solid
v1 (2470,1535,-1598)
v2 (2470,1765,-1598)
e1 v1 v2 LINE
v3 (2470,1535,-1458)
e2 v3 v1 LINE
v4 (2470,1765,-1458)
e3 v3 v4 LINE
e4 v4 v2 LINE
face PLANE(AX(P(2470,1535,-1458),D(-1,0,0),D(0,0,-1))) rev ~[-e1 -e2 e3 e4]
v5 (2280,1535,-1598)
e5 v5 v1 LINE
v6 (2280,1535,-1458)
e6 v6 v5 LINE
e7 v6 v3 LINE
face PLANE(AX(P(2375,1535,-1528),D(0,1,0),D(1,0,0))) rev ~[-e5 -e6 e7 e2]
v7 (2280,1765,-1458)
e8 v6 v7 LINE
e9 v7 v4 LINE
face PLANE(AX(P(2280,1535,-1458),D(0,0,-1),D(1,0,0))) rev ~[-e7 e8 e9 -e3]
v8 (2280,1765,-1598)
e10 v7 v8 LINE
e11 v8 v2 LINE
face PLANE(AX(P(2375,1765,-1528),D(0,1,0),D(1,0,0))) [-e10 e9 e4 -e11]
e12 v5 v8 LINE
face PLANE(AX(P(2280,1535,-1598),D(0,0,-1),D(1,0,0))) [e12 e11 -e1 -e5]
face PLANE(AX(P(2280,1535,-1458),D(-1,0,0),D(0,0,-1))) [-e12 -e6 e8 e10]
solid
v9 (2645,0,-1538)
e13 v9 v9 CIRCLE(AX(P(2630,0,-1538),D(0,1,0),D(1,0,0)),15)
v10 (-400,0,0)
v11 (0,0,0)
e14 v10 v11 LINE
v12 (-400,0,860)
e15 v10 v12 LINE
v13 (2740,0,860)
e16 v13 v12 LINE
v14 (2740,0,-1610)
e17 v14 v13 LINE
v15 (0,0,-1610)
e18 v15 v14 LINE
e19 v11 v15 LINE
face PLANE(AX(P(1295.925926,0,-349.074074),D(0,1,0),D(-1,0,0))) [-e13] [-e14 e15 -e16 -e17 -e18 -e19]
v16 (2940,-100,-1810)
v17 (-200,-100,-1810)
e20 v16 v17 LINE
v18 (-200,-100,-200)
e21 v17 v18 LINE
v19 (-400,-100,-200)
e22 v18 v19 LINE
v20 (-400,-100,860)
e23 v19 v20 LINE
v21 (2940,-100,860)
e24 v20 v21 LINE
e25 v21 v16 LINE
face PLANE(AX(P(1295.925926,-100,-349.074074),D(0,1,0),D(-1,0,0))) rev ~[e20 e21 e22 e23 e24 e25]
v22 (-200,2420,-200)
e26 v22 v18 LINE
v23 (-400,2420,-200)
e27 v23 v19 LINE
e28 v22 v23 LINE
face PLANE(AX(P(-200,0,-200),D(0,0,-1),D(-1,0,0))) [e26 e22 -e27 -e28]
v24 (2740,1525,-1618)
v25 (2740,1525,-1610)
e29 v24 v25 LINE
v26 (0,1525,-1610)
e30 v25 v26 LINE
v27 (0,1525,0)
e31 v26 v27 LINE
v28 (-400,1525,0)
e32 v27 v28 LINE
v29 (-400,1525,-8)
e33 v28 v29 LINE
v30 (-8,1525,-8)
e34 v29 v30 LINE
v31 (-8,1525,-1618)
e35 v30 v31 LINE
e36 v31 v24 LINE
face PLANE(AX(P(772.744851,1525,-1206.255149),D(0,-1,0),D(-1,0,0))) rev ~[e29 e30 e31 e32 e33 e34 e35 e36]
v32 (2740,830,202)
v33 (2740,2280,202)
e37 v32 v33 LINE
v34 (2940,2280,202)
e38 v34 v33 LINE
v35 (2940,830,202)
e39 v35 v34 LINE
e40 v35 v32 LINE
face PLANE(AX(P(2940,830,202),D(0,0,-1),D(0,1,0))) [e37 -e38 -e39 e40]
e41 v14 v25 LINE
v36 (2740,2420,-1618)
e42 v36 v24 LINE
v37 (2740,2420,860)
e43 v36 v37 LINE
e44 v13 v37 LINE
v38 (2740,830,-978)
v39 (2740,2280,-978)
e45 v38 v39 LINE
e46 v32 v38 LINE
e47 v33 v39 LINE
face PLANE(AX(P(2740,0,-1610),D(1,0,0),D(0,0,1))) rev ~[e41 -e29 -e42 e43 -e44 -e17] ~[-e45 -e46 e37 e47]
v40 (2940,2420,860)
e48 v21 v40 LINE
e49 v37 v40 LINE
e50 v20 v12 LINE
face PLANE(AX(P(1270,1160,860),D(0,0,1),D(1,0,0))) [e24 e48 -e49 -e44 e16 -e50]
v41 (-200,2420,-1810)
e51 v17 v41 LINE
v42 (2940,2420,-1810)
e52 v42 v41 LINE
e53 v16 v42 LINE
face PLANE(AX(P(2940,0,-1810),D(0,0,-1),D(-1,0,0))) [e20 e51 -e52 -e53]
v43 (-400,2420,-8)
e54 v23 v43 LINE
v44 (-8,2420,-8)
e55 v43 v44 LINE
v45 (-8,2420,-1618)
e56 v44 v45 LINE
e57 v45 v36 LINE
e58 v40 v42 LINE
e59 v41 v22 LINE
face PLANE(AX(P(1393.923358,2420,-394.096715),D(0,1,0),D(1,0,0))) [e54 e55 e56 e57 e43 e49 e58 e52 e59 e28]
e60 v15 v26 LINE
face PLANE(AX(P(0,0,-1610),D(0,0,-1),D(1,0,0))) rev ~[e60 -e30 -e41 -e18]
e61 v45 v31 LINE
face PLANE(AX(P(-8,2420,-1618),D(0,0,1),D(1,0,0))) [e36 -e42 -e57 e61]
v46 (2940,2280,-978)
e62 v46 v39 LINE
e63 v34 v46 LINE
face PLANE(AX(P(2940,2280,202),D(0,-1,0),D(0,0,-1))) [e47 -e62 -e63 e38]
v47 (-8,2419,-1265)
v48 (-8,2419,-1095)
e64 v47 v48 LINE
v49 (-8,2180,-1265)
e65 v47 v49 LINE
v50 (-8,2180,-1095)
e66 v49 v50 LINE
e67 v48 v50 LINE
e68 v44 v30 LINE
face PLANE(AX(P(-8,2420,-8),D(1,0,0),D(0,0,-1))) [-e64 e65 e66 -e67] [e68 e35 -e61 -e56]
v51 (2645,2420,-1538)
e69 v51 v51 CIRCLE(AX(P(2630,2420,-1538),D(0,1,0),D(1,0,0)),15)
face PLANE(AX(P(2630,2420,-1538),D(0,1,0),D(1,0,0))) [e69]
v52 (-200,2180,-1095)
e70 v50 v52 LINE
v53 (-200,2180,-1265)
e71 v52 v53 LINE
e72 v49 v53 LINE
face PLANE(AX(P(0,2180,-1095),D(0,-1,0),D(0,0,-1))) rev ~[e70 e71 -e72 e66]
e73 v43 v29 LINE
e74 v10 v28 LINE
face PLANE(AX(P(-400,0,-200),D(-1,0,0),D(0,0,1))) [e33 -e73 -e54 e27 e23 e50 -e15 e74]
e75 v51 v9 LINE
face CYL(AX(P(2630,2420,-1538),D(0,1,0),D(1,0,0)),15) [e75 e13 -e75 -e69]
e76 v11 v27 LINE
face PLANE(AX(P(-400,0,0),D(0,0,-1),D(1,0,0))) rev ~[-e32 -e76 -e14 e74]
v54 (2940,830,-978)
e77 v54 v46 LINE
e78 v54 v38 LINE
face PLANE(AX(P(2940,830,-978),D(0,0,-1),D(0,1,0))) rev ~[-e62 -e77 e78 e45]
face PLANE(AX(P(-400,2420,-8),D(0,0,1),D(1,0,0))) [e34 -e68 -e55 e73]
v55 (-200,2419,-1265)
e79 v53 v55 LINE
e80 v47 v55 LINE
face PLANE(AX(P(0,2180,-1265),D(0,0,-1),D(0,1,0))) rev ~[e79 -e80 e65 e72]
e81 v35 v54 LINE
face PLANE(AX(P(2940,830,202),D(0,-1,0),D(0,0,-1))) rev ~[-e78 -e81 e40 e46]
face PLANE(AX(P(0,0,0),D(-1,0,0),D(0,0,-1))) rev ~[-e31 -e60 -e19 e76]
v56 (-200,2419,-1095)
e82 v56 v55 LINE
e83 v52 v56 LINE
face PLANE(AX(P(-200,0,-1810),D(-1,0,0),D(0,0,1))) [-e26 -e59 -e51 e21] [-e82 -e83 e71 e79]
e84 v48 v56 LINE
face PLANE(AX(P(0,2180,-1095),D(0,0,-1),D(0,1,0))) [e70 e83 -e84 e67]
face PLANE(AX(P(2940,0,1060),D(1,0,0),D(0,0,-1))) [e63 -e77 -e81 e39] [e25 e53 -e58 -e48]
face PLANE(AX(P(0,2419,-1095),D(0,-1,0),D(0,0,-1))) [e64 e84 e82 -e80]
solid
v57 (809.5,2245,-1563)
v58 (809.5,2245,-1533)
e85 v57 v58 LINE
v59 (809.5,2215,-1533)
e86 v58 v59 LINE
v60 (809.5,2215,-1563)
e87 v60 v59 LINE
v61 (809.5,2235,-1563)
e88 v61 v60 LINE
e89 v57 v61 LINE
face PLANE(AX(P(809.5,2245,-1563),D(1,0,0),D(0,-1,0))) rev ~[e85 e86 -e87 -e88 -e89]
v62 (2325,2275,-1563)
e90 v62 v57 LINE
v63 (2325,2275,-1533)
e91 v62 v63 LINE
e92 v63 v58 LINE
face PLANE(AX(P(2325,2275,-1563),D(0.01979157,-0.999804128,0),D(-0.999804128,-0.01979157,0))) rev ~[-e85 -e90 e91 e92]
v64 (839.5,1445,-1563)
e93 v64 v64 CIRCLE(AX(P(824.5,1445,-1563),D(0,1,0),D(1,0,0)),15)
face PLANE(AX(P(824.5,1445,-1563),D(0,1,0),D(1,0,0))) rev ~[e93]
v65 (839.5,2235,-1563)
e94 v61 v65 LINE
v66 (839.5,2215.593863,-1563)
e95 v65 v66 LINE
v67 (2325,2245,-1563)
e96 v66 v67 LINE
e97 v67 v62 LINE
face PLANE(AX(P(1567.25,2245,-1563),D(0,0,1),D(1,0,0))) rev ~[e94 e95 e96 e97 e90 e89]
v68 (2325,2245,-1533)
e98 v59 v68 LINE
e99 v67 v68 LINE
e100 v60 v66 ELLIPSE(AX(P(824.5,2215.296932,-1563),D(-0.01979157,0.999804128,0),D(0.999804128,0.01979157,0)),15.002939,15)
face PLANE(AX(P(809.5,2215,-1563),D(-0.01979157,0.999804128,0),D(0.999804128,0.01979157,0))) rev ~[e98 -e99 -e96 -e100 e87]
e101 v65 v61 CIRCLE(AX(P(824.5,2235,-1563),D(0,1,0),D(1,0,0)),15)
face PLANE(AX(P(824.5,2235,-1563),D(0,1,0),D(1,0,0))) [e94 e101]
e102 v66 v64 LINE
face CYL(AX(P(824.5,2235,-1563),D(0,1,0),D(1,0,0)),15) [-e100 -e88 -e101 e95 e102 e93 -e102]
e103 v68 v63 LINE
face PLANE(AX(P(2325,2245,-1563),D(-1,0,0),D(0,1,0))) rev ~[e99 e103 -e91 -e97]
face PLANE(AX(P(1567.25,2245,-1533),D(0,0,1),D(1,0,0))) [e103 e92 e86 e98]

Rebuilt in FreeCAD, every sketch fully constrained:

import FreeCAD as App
import Part
import Sketcher

V = App.Vector

doc = App.newDocument("Part")
body = doc.addObject("PartDesign::Body", "Body")

sketch1 = doc.addObject("Sketcher::SketchObject", "Sketch")
body.addObject(sketch1)
sketch1.AttachmentSupport = (doc.XZ_Plane, [""])
sketch1.MapMode = "FlatFace"
sketch1.addGeometry(Part.LineSegment(V(0, 0, 0), V(0, -1610, 0)), False)
sketch1.addGeometry(Part.LineSegment(V(0, -1610, 0), V(2740, -1610, 0)), False)
sketch1.addGeometry(Part.LineSegment(V(2740, -1610, 0), V(2740, 860, 0)), False)
sketch1.addGeometry(Part.LineSegment(V(2740, 860, 0), V(-400, 860, 0)), False)
sketch1.addGeometry(Part.LineSegment(V(-400, 860, 0), V(-400, 1060, 0)), False)
sketch1.addGeometry(Part.LineSegment(V(-400, 1060, 0), V(2940, 1060, 0)), False)
sketch1.addGeometry(Part.LineSegment(V(2940, 1060, 0), V(2940, -1810, 0)), False)
sketch1.addGeometry(Part.LineSegment(V(2940, -1810, 0), V(-200, -1810, 0)), False)
sketch1.addGeometry(Part.LineSegment(V(-200, -1810, 0), V(-200, -200, 0)), False)
sketch1.addGeometry(Part.LineSegment(V(-200, -200, 0), V(-400, -200, 0)), False)
sketch1.addGeometry(Part.LineSegment(V(-400, -200, 0), V(-400, 0, 0)), False)
sketch1.addGeometry(Part.LineSegment(V(-400, 0, 0), V(0, 0, 0)), False)
sketch1.addConstraint(Sketcher.Constraint("Coincident", 0, 2, 1, 1))
sketch1.addConstraint(Sketcher.Constraint("Coincident", 1, 2, 2, 1))
sketch1.addConstraint(Sketcher.Constraint("Coincident", 2, 2, 3, 1))
sketch1.addConstraint(Sketcher.Constraint("Coincident", 3, 2, 4, 1))
sketch1.addConstraint(Sketcher.Constraint("Coincident", 4, 2, 5, 1))
sketch1.addConstraint(Sketcher.Constraint("Coincident", 5, 2, 6, 1))
sketch1.addConstraint(Sketcher.Constraint("Coincident", 6, 2, 7, 1))
sketch1.addConstraint(Sketcher.Constraint("Coincident", 7, 2, 8, 1))
sketch1.addConstraint(Sketcher.Constraint("Coincident", 8, 2, 9, 1))
sketch1.addConstraint(Sketcher.Constraint("Coincident", 9, 2, 10, 1))
sketch1.addConstraint(Sketcher.Constraint("Coincident", 10, 2, 11, 1))
sketch1.addConstraint(Sketcher.Constraint("Coincident", 11, 2, 0, 1))
sketch1.addConstraint(Sketcher.Constraint("Vertical", 0))
sketch1.addConstraint(Sketcher.Constraint("Horizontal", 1))
sketch1.addConstraint(Sketcher.Constraint("Vertical", 2))
sketch1.addConstraint(Sketcher.Constraint("Horizontal", 3))
sketch1.addConstraint(Sketcher.Constraint("Vertical", 4))
sketch1.addConstraint(Sketcher.Constraint("Horizontal", 5))
sketch1.addConstraint(Sketcher.Constraint("Vertical", 6))
sketch1.addConstraint(Sketcher.Constraint("Horizontal", 7))
sketch1.addConstraint(Sketcher.Constraint("Vertical", 8))
sketch1.addConstraint(Sketcher.Constraint("Horizontal", 9))
sketch1.addConstraint(Sketcher.Constraint("Vertical", 10))
sketch1.addConstraint(Sketcher.Constraint("Horizontal", 11))
sketch1.addConstraint(Sketcher.Constraint("Coincident", 11, 2, -1, 1))
sketch1.addConstraint(Sketcher.Constraint("Vertical", 4, 2, 9, 2))
sketch1.addConstraint(Sketcher.Constraint("Equal", 3, 7))
sketch1.addConstraint(Sketcher.Constraint("Equal", 9, 4))
sketch1.addConstraint(Sketcher.Constraint("Equal", 0, 8))
sketch1.addConstraint(Sketcher.Constraint("Equal", 4, 10))
sketch1.addConstraint(Sketcher.Constraint("DistanceX", 1, 1, 1, 2, 2740.0))
sketch1.addConstraint(Sketcher.Constraint("DistanceX", 3, 2, 3, 1, 3140.0))
sketch1.addConstraint(Sketcher.Constraint("DistanceX", 5, 1, 5, 2, 3340.0))
sketch1.addConstraint(Sketcher.Constraint("DistanceY", 0, 2, 0, 1, 1610.0))
sketch1.addConstraint(Sketcher.Constraint("DistanceY", 2, 1, 2, 2, 2470.0))
pad1 = doc.addObject("PartDesign::Pad", "Pad")
body.addObject(pad1)
pad1.Profile = sketch1
pad1.Length = 2420
pad1.Reversed = True

sketch2 = doc.addObject("Sketcher::SketchObject", "Sketch001")
body.addObject(sketch2)
sketch2.AttachmentSupport = (doc.XZ_Plane, [""])
sketch2.MapMode = "FlatFace"
sketch2.addGeometry(Part.LineSegment(V(2940, 1060, 0), V(-400, 1060, 0)), False)
sketch2.addGeometry(Part.LineSegment(V(-400, 1060, 0), V(-400, -200, 0)), False)
sketch2.addGeometry(Part.LineSegment(V(-400, -200, 0), V(-200, -200, 0)), False)
sketch2.addGeometry(Part.LineSegment(V(-200, -200, 0), V(-200, -1810, 0)), False)
sketch2.addGeometry(Part.LineSegment(V(-200, -1810, 0), V(2940, -1810, 0)), False)
sketch2.addGeometry(Part.LineSegment(V(2940, -1810, 0), V(2940, 1060, 0)), False)
sketch2.addConstraint(Sketcher.Constraint("Coincident", 0, 2, 1, 1))
sketch2.addConstraint(Sketcher.Constraint("Coincident", 1, 2, 2, 1))
sketch2.addConstraint(Sketcher.Constraint("Coincident", 2, 2, 3, 1))
sketch2.addConstraint(Sketcher.Constraint("Coincident", 3, 2, 4, 1))
sketch2.addConstraint(Sketcher.Constraint("Coincident", 4, 2, 5, 1))
sketch2.addConstraint(Sketcher.Constraint("Coincident", 5, 2, 0, 1))
sketch2.addConstraint(Sketcher.Constraint("Horizontal", 0))
sketch2.addConstraint(Sketcher.Constraint("Vertical", 1))
sketch2.addConstraint(Sketcher.Constraint("Horizontal", 2))
sketch2.addConstraint(Sketcher.Constraint("Vertical", 3))
sketch2.addConstraint(Sketcher.Constraint("Horizontal", 4))
sketch2.addConstraint(Sketcher.Constraint("Vertical", 5))
sketch2.addConstraint(Sketcher.Constraint("DistanceX", 0, 2, 0, 1, 3340.0))
sketch2.addConstraint(Sketcher.Constraint("DistanceX", 2, 1, 2, 2, 200.0))
sketch2.addConstraint(Sketcher.Constraint("DistanceY", 1, 2, 1, 1, 1260.0))
sketch2.addConstraint(Sketcher.Constraint("DistanceY", 3, 2, 3, 1, 1610.0))
sketch2.addConstraint(Sketcher.Constraint("DistanceX", 0, 2, -1, 1, 400.0))
sketch2.addConstraint(Sketcher.Constraint("DistanceY", -1, 1, 0, 2, 1060.0))
pad2 = doc.addObject("PartDesign::Pad", "Pad001")
body.addObject(pad2)
pad2.Profile = sketch2
pad2.Length = 100

sketch3 = doc.addObject("Sketcher::SketchObject", "Sketch002")
body.addObject(sketch3)
sketch3.AttachmentSupport = (doc.XY_Plane, [""])
sketch3.MapMode = "FlatFace"
sketch3.AttachmentOffset = App.Placement(V(0, 0, 1060), App.Rotation())
sketch3.addGeometry(Part.LineSegment(V(-400, 2420, 0), V(-400, -100, 0)), False)
sketch3.addGeometry(Part.LineSegment(V(-400, -100, 0), V(2940, -100, 0)), False)
sketch3.addGeometry(Part.LineSegment(V(2940, -100, 0), V(2940, 2420, 0)), False)
sketch3.addGeometry(Part.LineSegment(V(2940, 2420, 0), V(-400, 2420, 0)), False)
sketch3.addConstraint(Sketcher.Constraint("Coincident", 0, 2, 1, 1))
sketch3.addConstraint(Sketcher.Constraint("Coincident", 1, 2, 2, 1))
sketch3.addConstraint(Sketcher.Constraint("Coincident", 2, 2, 3, 1))
sketch3.addConstraint(Sketcher.Constraint("Coincident", 3, 2, 0, 1))
sketch3.addConstraint(Sketcher.Constraint("Vertical", 0))
sketch3.addConstraint(Sketcher.Constraint("Horizontal", 1))
sketch3.addConstraint(Sketcher.Constraint("Vertical", 2))
sketch3.addConstraint(Sketcher.Constraint("Horizontal", 3))
sketch3.addConstraint(Sketcher.Constraint("DistanceX", 1, 1, 1, 2, 3340.0))
sketch3.addConstraint(Sketcher.Constraint("DistanceY", 0, 2, 0, 1, 2520.0))
sketch3.addConstraint(Sketcher.Constraint("DistanceX", 0, 2, -1, 1, 400.0))
sketch3.addConstraint(Sketcher.Constraint("DistanceY", 0, 2, -1, 1, 100.0))
pocket1 = doc.addObject("PartDesign::Pocket", "Pocket")
body.addObject(pocket1)
pocket1.Profile = sketch3
pocket1.Length = 200

sketch4 = doc.addObject("Sketcher::SketchObject", "Sketch003")
body.addObject(sketch4)
sketch4.AttachmentSupport = (doc.YZ_Plane, [""])
sketch4.MapMode = "FlatFace"
sketch4.addGeometry(Part.LineSegment(V(2419, -1095, 0), V(2180, -1095, 0)), False)
sketch4.addGeometry(Part.LineSegment(V(2180, -1095, 0), V(2180, -1265, 0)), False)
sketch4.addGeometry(Part.LineSegment(V(2180, -1265, 0), V(2419, -1265, 0)), False)
sketch4.addGeometry(Part.LineSegment(V(2419, -1265, 0), V(2419, -1095, 0)), False)
sketch4.addConstraint(Sketcher.Constraint("Coincident", 0, 2, 1, 1))
sketch4.addConstraint(Sketcher.Constraint("Coincident", 1, 2, 2, 1))
sketch4.addConstraint(Sketcher.Constraint("Coincident", 2, 2, 3, 1))
sketch4.addConstraint(Sketcher.Constraint("Coincident", 3, 2, 0, 1))
sketch4.addConstraint(Sketcher.Constraint("Horizontal", 0))
sketch4.addConstraint(Sketcher.Constraint("Vertical", 1))
sketch4.addConstraint(Sketcher.Constraint("Horizontal", 2))
sketch4.addConstraint(Sketcher.Constraint("Vertical", 3))
sketch4.addConstraint(Sketcher.Constraint("DistanceX", 0, 2, 0, 1, 239.0))
sketch4.addConstraint(Sketcher.Constraint("DistanceY", 1, 2, 1, 1, 170.0))
sketch4.addConstraint(Sketcher.Constraint("DistanceX", -1, 1, 0, 2, 2180.0))
sketch4.addConstraint(Sketcher.Constraint("DistanceY", 0, 2, -1, 1, 1095.0))
pocket2 = doc.addObject("PartDesign::Pocket", "Pocket001")
body.addObject(pocket2)
pocket2.Profile = sketch4
pocket2.Length = 200

sketch5 = doc.addObject("Sketcher::SketchObject", "Sketch004")
body.addObject(sketch5)
sketch5.AttachmentSupport = (doc.XZ_Plane, [""])
sketch5.MapMode = "FlatFace"
sketch5.AttachmentOffset = App.Placement(V(0, 0, -2420), App.Rotation())
sketch5.addGeometry(Part.LineSegment(V(-8, -8, 0), V(-400, -8, 0)), False)
sketch5.addGeometry(Part.LineSegment(V(-400, -8, 0), V(-400, 0, 0)), False)
sketch5.addGeometry(Part.LineSegment(V(-400, 0, 0), V(0, 0, 0)), False)
sketch5.addGeometry(Part.LineSegment(V(0, 0, 0), V(0, -1610, 0)), False)
sketch5.addGeometry(Part.LineSegment(V(0, -1610, 0), V(2740, -1610, 0)), False)
sketch5.addGeometry(Part.LineSegment(V(2740, -1610, 0), V(2740, -1618, 0)), False)
sketch5.addGeometry(Part.LineSegment(V(2740, -1618, 0), V(-8, -1618, 0)), False)
sketch5.addGeometry(Part.LineSegment(V(-8, -1618, 0), V(-8, -8, 0)), False)
sketch5.addConstraint(Sketcher.Constraint("Coincident", 0, 2, 1, 1))
sketch5.addConstraint(Sketcher.Constraint("Coincident", 1, 2, 2, 1))
sketch5.addConstraint(Sketcher.Constraint("Coincident", 2, 2, 3, 1))
sketch5.addConstraint(Sketcher.Constraint("Coincident", 3, 2, 4, 1))
sketch5.addConstraint(Sketcher.Constraint("Coincident", 4, 2, 5, 1))
sketch5.addConstraint(Sketcher.Constraint("Coincident", 5, 2, 6, 1))
sketch5.addConstraint(Sketcher.Constraint("Coincident", 6, 2, 7, 1))
sketch5.addConstraint(Sketcher.Constraint("Coincident", 7, 2, 0, 1))
sketch5.addConstraint(Sketcher.Constraint("Horizontal", 0))
sketch5.addConstraint(Sketcher.Constraint("Vertical", 1))
sketch5.addConstraint(Sketcher.Constraint("Horizontal", 2))
sketch5.addConstraint(Sketcher.Constraint("Vertical", 3))
sketch5.addConstraint(Sketcher.Constraint("Horizontal", 4))
sketch5.addConstraint(Sketcher.Constraint("Vertical", 5))
sketch5.addConstraint(Sketcher.Constraint("Horizontal", 6))
sketch5.addConstraint(Sketcher.Constraint("Vertical", 7))
sketch5.addConstraint(Sketcher.Constraint("Coincident", 2, 2, -1, 1))
sketch5.addConstraint(Sketcher.Constraint("Equal", 1, 5))
sketch5.addConstraint(Sketcher.Constraint("DistanceX", 0, 2, 0, 1, 392.0))
sketch5.addConstraint(Sketcher.Constraint("DistanceX", 2, 1, 2, 2, 400.0))
sketch5.addConstraint(Sketcher.Constraint("DistanceX", 4, 1, 4, 2, 2740.0))
sketch5.addConstraint(Sketcher.Constraint("DistanceY", 1, 1, 1, 2, 8.0))
sketch5.addConstraint(Sketcher.Constraint("DistanceY", 3, 2, 3, 1, 1610.0))
pocket3 = doc.addObject("PartDesign::Pocket", "Pocket002")
body.addObject(pocket3)
pocket3.Profile = sketch5
pocket3.Length = 895
pocket3.Reversed = True

sketch6 = doc.addObject("Sketcher::SketchObject", "Sketch005")
body.addObject(sketch6)
sketch6.AttachmentSupport = (doc.XZ_Plane, [""])
sketch6.MapMode = "FlatFace"
sketch6.AttachmentOffset = App.Placement(V(0, 0, -2420), App.Rotation())
sketch6.addGeometry(Part.Circle(V(2630, -1538, 0), V(0, 0, 1), 15), False)
sketch6.addConstraint(Sketcher.Constraint("Diameter", 0, 30.0))
sketch6.addConstraint(Sketcher.Constraint("DistanceX", -1, 1, 0, 3, 2630.0))
sketch6.addConstraint(Sketcher.Constraint("DistanceY", 0, 3, -1, 1, 1538.0))
pad3 = doc.addObject("PartDesign::Pad", "Pad002")
body.addObject(pad3)
pad3.Profile = sketch6
pad3.Length = 2420

sketch7 = doc.addObject("Sketcher::SketchObject", "Sketch006")
body.addObject(sketch7)
sketch7.AttachmentSupport = (doc.YZ_Plane, [""])
sketch7.MapMode = "FlatFace"
sketch7.AttachmentOffset = App.Placement(V(0, 0, 2940), App.Rotation())
sketch7.addGeometry(Part.LineSegment(V(2280, 202, 0), V(830, 202, 0)), False)
sketch7.addGeometry(Part.LineSegment(V(830, 202, 0), V(830, -978, 0)), False)
sketch7.addGeometry(Part.LineSegment(V(830, -978, 0), V(2280, -978, 0)), False)
sketch7.addGeometry(Part.LineSegment(V(2280, -978, 0), V(2280, 202, 0)), False)
sketch7.addConstraint(Sketcher.Constraint("Coincident", 0, 2, 1, 1))
sketch7.addConstraint(Sketcher.Constraint("Coincident", 1, 2, 2, 1))
sketch7.addConstraint(Sketcher.Constraint("Coincident", 2, 2, 3, 1))
sketch7.addConstraint(Sketcher.Constraint("Coincident", 3, 2, 0, 1))
sketch7.addConstraint(Sketcher.Constraint("Horizontal", 0))
sketch7.addConstraint(Sketcher.Constraint("Vertical", 1))
sketch7.addConstraint(Sketcher.Constraint("Horizontal", 2))
sketch7.addConstraint(Sketcher.Constraint("Vertical", 3))
sketch7.addConstraint(Sketcher.Constraint("DistanceX", 0, 2, 0, 1, 1450.0))
sketch7.addConstraint(Sketcher.Constraint("DistanceY", 1, 2, 1, 1, 1180.0))
sketch7.addConstraint(Sketcher.Constraint("DistanceX", -1, 1, 0, 2, 830.0))
sketch7.addConstraint(Sketcher.Constraint("DistanceY", -1, 1, 0, 2, 202.0))
pocket4 = doc.addObject("PartDesign::Pocket", "Pocket003")
body.addObject(pocket4)
pocket4.Profile = sketch7
pocket4.Length = 400
body2 = doc.addObject("PartDesign::Body", "Body001")

sketch8 = doc.addObject("Sketcher::SketchObject", "Sketch007")
body2.addObject(sketch8)
sketch8.AttachmentSupport = (doc.getObject("XZ_Plane001"), [""])
sketch8.MapMode = "FlatFace"
sketch8.AttachmentOffset = App.Placement(V(0, 0, -2235), App.Rotation())
sketch8.addGeometry(Part.Circle(V(824.5, -1563, 0), V(0, 0, 1), 15), False)
sketch8.addConstraint(Sketcher.Constraint("Diameter", 0, 30.0))
sketch8.addConstraint(Sketcher.Constraint("DistanceY", 0, 3, -1, 1, 1563.0))
sketch8.addConstraint(Sketcher.Constraint("DistanceX", -1, 1, 0, 3, 824.5))
pad4 = doc.addObject("PartDesign::Pad", "Pad003")
body2.addObject(pad4)
pad4.Profile = sketch8
pad4.Length = 790

sketch9 = doc.addObject("Sketcher::SketchObject", "Sketch008")
body2.addObject(sketch9)
sketch9.AttachmentSupport = (doc.getObject("XY_Plane001"), [""])
sketch9.MapMode = "FlatFace"
sketch9.AttachmentOffset = App.Placement(V(0, 0, -1563), App.Rotation())
sketch9.addGeometry(Part.LineSegment(V(809.5, 2215, 0), V(2325, 2245, 0)), False)
sketch9.addGeometry(Part.LineSegment(V(2325, 2245, 0), V(2325, 2275, 0)), False)
sketch9.addGeometry(Part.LineSegment(V(2325, 2275, 0), V(809.5, 2245, 0)), False)
sketch9.addGeometry(Part.LineSegment(V(809.5, 2245, 0), V(809.5, 2215, 0)), False)
sketch9.addConstraint(Sketcher.Constraint("Coincident", 0, 2, 1, 1))
sketch9.addConstraint(Sketcher.Constraint("Coincident", 1, 2, 2, 1))
sketch9.addConstraint(Sketcher.Constraint("Coincident", 2, 2, 3, 1))
sketch9.addConstraint(Sketcher.Constraint("Coincident", 3, 2, 0, 1))
sketch9.addConstraint(Sketcher.Constraint("Vertical", 1))
sketch9.addConstraint(Sketcher.Constraint("Vertical", 3))
sketch9.addConstraint(Sketcher.Constraint("Parallel", 0, 2))
sketch9.addConstraint(Sketcher.Constraint("Horizontal", 0, 2, 2, 2))
sketch9.addConstraint(Sketcher.Constraint("DistanceY", 1, 1, 1, 2, 30.0))
sketch9.addConstraint(Sketcher.Constraint("DistanceX", -1, 1, 0, 2, 2325.0))
sketch9.addConstraint(Sketcher.Constraint("DistanceY", -1, 1, 0, 2, 2245.0))
sketch9.addConstraint(Sketcher.Constraint("DistanceX", -1, 1, 2, 2, 809.5))
pad5 = doc.addObject("PartDesign::Pad", "Pad004")
body2.addObject(pad5)
pad5.Profile = sketch9
pad5.Length = 30
body3 = doc.addObject("PartDesign::Body", "Body002")

sketch10 = doc.addObject("Sketcher::SketchObject", "Sketch009")
body3.addObject(sketch10)
sketch10.AttachmentSupport = (doc.getObject("XZ_Plane002"), [""])
sketch10.MapMode = "FlatFace"
sketch10.AttachmentOffset = App.Placement(V(0, 0, -1535), App.Rotation())
sketch10.addGeometry(Part.LineSegment(V(2280, -1598, 0), V(2280, -1458, 0)), False)
sketch10.addGeometry(Part.LineSegment(V(2280, -1458, 0), V(2470, -1458, 0)), False)
sketch10.addGeometry(Part.LineSegment(V(2470, -1458, 0), V(2470, -1598, 0)), False)
sketch10.addGeometry(Part.LineSegment(V(2470, -1598, 0), V(2280, -1598, 0)), False)
sketch10.addConstraint(Sketcher.Constraint("Coincident", 0, 2, 1, 1))
sketch10.addConstraint(Sketcher.Constraint("Coincident", 1, 2, 2, 1))
sketch10.addConstraint(Sketcher.Constraint("Coincident", 2, 2, 3, 1))
sketch10.addConstraint(Sketcher.Constraint("Coincident", 3, 2, 0, 1))
sketch10.addConstraint(Sketcher.Constraint("Vertical", 0))
sketch10.addConstraint(Sketcher.Constraint("Horizontal", 1))
sketch10.addConstraint(Sketcher.Constraint("Vertical", 2))
sketch10.addConstraint(Sketcher.Constraint("Horizontal", 3))
sketch10.addConstraint(Sketcher.Constraint("DistanceX", 1, 1, 1, 2, 190.0))
sketch10.addConstraint(Sketcher.Constraint("DistanceY", 0, 1, 0, 2, 140.0))
sketch10.addConstraint(Sketcher.Constraint("DistanceX", -1, 1, 0, 2, 2280.0))
sketch10.addConstraint(Sketcher.Constraint("DistanceY", 0, 2, -1, 1, 1458.0))
pad6 = doc.addObject("PartDesign::Pad", "Pad005")
body3.addObject(pad6)
pad6.Profile = sketch10
pad6.Length = 230
pad6.Reversed = True

doc.recompute()
